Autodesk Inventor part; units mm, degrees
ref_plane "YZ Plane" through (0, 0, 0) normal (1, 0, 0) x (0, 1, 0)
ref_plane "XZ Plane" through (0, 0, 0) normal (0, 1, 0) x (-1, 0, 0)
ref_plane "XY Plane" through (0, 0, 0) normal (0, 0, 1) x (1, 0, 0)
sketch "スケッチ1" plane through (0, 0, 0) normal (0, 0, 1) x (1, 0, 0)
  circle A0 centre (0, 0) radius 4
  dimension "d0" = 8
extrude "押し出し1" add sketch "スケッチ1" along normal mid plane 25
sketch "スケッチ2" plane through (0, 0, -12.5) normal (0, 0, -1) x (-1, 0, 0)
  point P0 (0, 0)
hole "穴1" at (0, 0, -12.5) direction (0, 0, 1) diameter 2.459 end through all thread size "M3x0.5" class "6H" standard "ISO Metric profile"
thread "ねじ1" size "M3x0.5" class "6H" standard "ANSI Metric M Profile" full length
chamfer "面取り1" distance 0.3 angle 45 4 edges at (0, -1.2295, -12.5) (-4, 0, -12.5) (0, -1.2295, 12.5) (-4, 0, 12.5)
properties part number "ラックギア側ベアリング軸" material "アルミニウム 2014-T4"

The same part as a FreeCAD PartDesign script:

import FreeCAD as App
import Part
import Sketcher

V = App.Vector
Q = App.Units.Quantity


def edges_at(feature, points):
    """Names of the edges that pass closest to the given points."""
    edges = feature.Shape.Edges
    near = lambda p: min(range(len(edges)), key=lambda i: edges[i].distToShape(Part.Vertex(*p))[0])
    return sorted({f"Edge{near(p) + 1}" for p in points})

doc = App.newDocument("Part")
params = doc.addObject("Spreadsheet::Sheet", "Params")
for row, (alias, value) in enumerate([
    ("sketch1_diameter", "8 mm"),
    ("pad1_length", "25 mm"),
    ("hole_diameter", "2.459 mm"),
    ("chamfer_size", "0.3 mm"),
], start=1):
    params.set(f"A{row}", alias)
    params.set(f"B{row}", "=" + value)
    params.setAlias(f"B{row}", alias)

body = doc.addObject("PartDesign::Body", "Body")

sketch1 = body.newObject("Sketcher::SketchObject", "Sketch")
sketch1.AttachmentSupport = (doc.getObject("XY_Plane"), [""])
sketch1.MapMode = "FlatFace"
sketch1.addGeometry(Part.Circle(V(0, 0, 0), V(0, 0, 1), 4), False)
sketch1.addConstraint([
    Sketcher.Constraint("Coincident", 0, 3, -1, 1),
    Sketcher.Constraint("Diameter", 0, Q("8 mm")),
])
sketch1.setExpression("Constraints[1]", "Params.sketch1_diameter")
pad1 = body.newObject("PartDesign::Pad", "Pad")
pad1.Profile = sketch1
pad1.setExpression("Length", "Params.pad1_length")
pad1.Midplane = True

sketch2 = body.newObject("Sketcher::SketchObject", "Sketch001")
sketch2.AttachmentSupport = (doc.getObject("XY_Plane"), [""])
sketch2.MapMode = "FlatFace"
sketch2.AttachmentOffset = App.Placement(V(0, 0, -12.5), App.Rotation())
sketch2.addGeometry(Part.Circle(V(0, 0, 0), V(0, 0, 1), 1.2), False)
sketch2.addConstraint([
    Sketcher.Constraint("Coincident", 0, 3, -1, 1),
    Sketcher.Constraint("Diameter", 0, Q("2.459 mm")),
])
doc.recompute()
hole = body.newObject("PartDesign::Hole", "Hole")
hole.Profile = sketch2
hole.ThreadType = "None"
hole.setExpression("Diameter", "Params.hole_diameter")
hole.DepthType = "ThroughAll"
hole.Reversed = True
doc.recompute()

chamfer = body.newObject("PartDesign::Chamfer", "Chamfer")
chamfer.Base = (hole, edges_at(hole, [
    (0, -1.23, -12.5),
    (-4, 0, -12.5),
    (0, -1.23, 12.5),
    (-4, 0, 12.5),
]))
chamfer.setExpression("Size", "Params.chamfer_size")

doc.recompute()
